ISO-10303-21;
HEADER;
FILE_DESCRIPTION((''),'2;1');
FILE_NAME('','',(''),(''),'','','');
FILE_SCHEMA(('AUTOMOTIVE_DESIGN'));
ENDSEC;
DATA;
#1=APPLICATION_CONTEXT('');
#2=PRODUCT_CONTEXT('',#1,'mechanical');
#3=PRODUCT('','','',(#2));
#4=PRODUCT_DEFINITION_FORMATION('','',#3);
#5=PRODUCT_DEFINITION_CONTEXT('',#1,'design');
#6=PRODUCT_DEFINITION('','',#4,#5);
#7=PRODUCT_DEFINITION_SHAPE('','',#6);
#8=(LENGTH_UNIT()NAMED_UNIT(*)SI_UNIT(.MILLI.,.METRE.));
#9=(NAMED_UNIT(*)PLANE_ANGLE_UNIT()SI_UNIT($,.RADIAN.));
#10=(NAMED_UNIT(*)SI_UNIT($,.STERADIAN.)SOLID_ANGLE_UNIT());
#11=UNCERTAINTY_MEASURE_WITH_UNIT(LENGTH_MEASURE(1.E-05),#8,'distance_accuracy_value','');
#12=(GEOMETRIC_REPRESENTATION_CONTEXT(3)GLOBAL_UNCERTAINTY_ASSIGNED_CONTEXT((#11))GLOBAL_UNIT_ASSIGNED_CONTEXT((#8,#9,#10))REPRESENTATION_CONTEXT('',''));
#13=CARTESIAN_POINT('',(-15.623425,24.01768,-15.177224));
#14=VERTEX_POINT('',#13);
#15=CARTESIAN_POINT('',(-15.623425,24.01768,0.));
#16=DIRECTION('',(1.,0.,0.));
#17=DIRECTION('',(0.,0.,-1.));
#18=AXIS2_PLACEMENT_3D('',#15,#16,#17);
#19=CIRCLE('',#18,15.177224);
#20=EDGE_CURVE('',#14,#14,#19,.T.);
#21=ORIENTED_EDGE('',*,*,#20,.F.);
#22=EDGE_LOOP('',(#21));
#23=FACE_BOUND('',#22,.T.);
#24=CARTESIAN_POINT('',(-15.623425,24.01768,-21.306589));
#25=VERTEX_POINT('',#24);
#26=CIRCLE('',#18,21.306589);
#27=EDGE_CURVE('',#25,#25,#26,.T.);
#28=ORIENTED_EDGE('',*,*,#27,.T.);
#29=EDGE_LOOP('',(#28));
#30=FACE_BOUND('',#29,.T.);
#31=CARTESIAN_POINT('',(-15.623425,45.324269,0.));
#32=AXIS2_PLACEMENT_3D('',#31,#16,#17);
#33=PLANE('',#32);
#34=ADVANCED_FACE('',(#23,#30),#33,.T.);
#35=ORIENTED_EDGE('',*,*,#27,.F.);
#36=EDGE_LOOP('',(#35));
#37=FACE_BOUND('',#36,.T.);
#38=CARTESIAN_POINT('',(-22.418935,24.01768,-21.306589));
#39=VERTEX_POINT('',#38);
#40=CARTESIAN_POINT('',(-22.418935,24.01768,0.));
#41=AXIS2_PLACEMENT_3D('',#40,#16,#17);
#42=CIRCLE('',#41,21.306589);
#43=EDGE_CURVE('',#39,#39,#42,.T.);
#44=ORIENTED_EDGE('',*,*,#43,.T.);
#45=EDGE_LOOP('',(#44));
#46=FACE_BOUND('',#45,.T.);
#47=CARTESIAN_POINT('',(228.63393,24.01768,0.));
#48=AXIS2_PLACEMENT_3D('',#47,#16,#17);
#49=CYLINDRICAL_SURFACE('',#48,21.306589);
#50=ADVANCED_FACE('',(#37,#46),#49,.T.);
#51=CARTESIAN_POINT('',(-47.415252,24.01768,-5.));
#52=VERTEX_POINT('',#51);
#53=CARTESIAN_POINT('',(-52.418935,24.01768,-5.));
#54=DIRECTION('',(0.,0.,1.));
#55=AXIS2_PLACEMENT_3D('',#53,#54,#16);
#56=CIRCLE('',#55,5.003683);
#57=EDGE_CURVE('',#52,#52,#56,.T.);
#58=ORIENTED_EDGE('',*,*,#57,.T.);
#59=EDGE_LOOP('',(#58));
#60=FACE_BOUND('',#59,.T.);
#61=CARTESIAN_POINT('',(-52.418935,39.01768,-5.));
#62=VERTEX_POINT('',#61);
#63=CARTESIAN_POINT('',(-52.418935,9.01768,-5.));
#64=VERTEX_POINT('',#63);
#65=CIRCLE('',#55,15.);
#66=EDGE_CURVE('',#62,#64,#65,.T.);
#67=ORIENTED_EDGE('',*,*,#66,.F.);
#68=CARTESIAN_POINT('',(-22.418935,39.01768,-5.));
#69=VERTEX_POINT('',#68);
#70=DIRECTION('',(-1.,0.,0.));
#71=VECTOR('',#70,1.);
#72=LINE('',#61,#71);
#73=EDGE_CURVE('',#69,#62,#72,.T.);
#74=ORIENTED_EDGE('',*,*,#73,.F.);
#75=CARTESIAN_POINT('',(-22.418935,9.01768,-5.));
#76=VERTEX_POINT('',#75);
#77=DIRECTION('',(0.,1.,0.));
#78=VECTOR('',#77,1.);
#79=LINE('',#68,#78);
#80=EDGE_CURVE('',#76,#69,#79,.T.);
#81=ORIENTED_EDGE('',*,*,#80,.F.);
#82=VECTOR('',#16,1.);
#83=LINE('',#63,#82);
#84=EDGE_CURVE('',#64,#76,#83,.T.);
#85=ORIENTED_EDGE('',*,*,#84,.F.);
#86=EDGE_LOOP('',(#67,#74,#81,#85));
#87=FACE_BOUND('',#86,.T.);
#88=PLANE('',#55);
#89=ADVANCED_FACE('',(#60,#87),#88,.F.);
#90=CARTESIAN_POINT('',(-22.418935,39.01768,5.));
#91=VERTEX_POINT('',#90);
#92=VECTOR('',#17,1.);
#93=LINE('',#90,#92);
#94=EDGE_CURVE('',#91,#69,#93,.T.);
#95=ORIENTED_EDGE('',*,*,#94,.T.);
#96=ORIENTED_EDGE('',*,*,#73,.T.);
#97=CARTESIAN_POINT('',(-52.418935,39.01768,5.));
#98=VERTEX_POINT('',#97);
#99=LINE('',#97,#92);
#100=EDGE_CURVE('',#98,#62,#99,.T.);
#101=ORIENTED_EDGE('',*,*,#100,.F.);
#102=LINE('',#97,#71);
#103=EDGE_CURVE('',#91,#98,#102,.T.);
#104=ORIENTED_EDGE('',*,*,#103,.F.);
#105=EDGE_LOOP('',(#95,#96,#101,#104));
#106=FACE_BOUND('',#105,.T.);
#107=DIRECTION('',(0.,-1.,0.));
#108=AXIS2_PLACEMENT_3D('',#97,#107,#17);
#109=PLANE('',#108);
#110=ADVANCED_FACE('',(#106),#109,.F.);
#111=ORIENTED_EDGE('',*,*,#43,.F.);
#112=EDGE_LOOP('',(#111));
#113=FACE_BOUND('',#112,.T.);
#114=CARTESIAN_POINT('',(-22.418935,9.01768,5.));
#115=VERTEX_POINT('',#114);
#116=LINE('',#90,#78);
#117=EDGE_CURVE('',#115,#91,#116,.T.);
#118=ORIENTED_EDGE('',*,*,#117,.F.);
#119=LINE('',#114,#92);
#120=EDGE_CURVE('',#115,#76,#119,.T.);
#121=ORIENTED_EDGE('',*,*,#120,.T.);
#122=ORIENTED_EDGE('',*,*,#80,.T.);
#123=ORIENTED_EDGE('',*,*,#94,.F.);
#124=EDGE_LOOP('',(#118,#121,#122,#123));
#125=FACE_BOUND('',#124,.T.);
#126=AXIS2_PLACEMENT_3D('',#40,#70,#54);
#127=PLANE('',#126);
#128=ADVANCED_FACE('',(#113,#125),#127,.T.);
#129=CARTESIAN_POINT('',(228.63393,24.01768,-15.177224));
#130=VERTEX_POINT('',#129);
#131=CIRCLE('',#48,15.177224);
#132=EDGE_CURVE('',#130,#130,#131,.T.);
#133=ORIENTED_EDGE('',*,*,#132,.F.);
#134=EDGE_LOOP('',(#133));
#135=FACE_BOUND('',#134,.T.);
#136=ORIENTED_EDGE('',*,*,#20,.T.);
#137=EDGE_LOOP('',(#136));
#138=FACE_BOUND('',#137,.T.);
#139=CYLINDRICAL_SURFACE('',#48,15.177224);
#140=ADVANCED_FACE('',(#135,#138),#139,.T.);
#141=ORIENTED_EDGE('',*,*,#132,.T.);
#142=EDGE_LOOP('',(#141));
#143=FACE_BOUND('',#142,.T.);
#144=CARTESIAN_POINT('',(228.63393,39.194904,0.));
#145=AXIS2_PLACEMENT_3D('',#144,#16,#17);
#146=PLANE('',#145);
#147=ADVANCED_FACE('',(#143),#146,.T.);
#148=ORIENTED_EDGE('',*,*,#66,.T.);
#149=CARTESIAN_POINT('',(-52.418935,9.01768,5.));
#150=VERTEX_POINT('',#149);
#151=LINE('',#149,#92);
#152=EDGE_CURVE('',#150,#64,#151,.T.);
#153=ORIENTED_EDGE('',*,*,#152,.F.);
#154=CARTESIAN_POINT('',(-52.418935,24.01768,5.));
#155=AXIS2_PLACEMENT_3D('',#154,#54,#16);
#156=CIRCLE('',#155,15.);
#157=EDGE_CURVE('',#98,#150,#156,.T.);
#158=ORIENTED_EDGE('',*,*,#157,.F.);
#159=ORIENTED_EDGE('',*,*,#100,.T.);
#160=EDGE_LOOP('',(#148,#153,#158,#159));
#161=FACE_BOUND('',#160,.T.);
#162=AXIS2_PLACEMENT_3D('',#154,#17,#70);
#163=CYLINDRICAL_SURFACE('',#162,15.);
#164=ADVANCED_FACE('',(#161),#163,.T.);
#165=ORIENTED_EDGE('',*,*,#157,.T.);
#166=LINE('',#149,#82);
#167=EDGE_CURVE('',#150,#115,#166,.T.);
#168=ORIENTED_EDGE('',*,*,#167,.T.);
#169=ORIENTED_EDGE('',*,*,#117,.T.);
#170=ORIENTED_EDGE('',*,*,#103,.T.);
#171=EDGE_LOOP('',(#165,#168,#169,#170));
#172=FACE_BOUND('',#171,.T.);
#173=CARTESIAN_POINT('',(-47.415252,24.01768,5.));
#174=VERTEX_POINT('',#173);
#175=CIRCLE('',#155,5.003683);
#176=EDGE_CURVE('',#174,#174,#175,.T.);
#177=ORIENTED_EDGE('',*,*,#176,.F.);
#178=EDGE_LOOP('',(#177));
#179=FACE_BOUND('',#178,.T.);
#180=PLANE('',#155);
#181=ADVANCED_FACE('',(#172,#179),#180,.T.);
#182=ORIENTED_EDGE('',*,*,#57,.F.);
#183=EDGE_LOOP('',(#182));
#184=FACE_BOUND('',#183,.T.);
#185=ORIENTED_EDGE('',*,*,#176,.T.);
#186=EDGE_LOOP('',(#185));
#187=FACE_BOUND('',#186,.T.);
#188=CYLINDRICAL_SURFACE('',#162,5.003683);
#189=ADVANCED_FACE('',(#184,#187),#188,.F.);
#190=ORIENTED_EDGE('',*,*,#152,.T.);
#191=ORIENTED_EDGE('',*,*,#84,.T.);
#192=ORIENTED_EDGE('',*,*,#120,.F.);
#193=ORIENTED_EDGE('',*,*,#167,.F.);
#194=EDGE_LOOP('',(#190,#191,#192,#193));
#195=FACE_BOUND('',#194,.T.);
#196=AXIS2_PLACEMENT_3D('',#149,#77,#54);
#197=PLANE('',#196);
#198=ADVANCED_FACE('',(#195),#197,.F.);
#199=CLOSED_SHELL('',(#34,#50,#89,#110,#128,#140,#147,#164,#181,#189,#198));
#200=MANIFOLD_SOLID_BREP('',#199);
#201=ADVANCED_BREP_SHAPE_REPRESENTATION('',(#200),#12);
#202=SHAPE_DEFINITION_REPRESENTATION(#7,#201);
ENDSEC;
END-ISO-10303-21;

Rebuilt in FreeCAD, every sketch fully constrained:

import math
import FreeCAD as App
import Part
import Sketcher
from FreeCAD import Vector
Q = App.Units.Quantity


def add_polygon(sketch, points):
    """Adds a closed chain of lines whose ends are joined by coincident constraints."""
    first, n = sketch.GeometryCount, len(points)
    for a, b in zip(points, points[1:] + points[:1]):
        sketch.addGeometry(Part.LineSegment(App.Vector(*a, 0), App.Vector(*b, 0)), False)
    for i in range(n):
        sketch.addConstraint(Sketcher.Constraint("Coincident", first + i, 2, first + (i + 1) % n, 1))

doc = App.newDocument("Part")
params = doc.addObject("Spreadsheet::Sheet", "Params")
for row, (alias, value) in enumerate([
    ("sketch1_radius", "15 mm"),
    ("pad1_length", "10 mm"),
    ("revolution_angle", "360 deg"),
], start=1):
    params.set(f"A{row}", alias)
    params.set(f"B{row}", "=" + value)
    params.setAlias(f"B{row}", alias)

body = doc.addObject("PartDesign::Body", "Body")

# Sketch on XY plane
sketch1 = body.newObject("Sketcher::SketchObject", "Sketch")
sketch1.AttachmentSupport = (doc.getObject("XY_Plane"), [""])
sketch1.MapMode = "FlatFace"
sketch1.addGeometry([
    Part.LineSegment(Vector(-22, 39, 0), Vector(-52, 39, 0)),  # 0
    Part.ArcOfCircle(Part.Circle(Vector(-52, 24, 0), Vector(0, 0, 1), 15), math.radians(90), math.radians(270)),  # 1
    Part.LineSegment(Vector(-52, 9, 0), Vector(-22, 9, 0)),  # 2
    Part.LineSegment(Vector(-22, 9, 0), Vector(-22, 39, 0)),  # 3
    Part.Circle(Vector(-52, 24, 0), Vector(0, 0, 1), 5),  # 4
], False)
sketch1.addConstraint([
    Sketcher.Constraint("Tangent", 0, 2, 1, 1),
    Sketcher.Constraint("Tangent", 1, 2, 2, 1),
    Sketcher.Constraint("Coincident", 2, 2, 3, 1),
    Sketcher.Constraint("Coincident", 3, 2, 0, 1),
    Sketcher.Constraint("Horizontal", 0),
    Sketcher.Constraint("Horizontal", 2),
    Sketcher.Constraint("Vertical", 3),
    Sketcher.Constraint("Coincident", 4, 3, 1, 3),
    Sketcher.Constraint("Equal", 2, 3),
    Sketcher.Constraint("Radius", 1, Q("15 mm")),
    Sketcher.Constraint("Diameter", 4, Q("10.007367 mm")),
    Sketcher.Constraint("DistanceY", -1, 1, 1, 3, Q("24.01768 mm")),
    Sketcher.Constraint("DistanceX", 1, 3, -1, 1, Q("52.418935 mm")),
])
sketch1.setExpression("Constraints[9]", "Params.sketch1_radius")
pad1 = body.newObject("PartDesign::Pad", "Pad")
pad1.Profile = sketch1
pad1.setExpression("Length", "Params.pad1_length")
pad1.Midplane = True

# Sketch on XY plane
sketch2 = body.newObject("Sketcher::SketchObject", "Sketch001")
sketch2.AttachmentSupport = (doc.getObject("XY_Plane"), [""])
sketch2.MapMode = "FlatFace"
add_polygon(sketch2, [(-22, 45), (-22, 24), (229, 24), (229, 39), (-16, 39), (-16, 45)])  # lines 0-5
sketch2.addGeometry(Part.LineSegment(Vector(229, 24, 0), Vector(-22, 24, 0)), True)  # axis
sketch2.addConstraint([
    Sketcher.Constraint("Vertical", 0),
    Sketcher.Constraint("Horizontal", 1),
    Sketcher.Constraint("Vertical", 2),
    Sketcher.Constraint("Horizontal", 3),
    Sketcher.Constraint("Vertical", 4),
    Sketcher.Constraint("Horizontal", 5),
    Sketcher.Constraint("Horizontal", 6),
    Sketcher.Constraint("Coincident", 6, 1, 1, 2),
    Sketcher.Constraint("Vertical", 5, 2, 6, 2),
    Sketcher.Constraint("DistanceX", 5, 2, 5, 1, Q("6.795511 mm")),
    Sketcher.Constraint("DistanceY", 0, 2, 0, 1, Q("21.306589 mm")),
    Sketcher.Constraint("DistanceX", 1, 1, 1, 2, Q("251.052866 mm")),
    Sketcher.Constraint("DistanceY", 2, 1, 2, 2, Q("15.177224 mm")),
    Sketcher.Constraint("DistanceY", -1, 1, 0, 2, Q("24.01768 mm")),
    Sketcher.Constraint("DistanceX", -1, 1, 1, 2, Q("228.63393 mm")),
])
revolution = body.newObject("PartDesign::Revolution", "Revolution")
revolution.Profile = sketch2
revolution.ReferenceAxis = (sketch2, ["Axis0"])
revolution.setExpression("Angle", "Params.revolution_angle")

doc.recompute()
